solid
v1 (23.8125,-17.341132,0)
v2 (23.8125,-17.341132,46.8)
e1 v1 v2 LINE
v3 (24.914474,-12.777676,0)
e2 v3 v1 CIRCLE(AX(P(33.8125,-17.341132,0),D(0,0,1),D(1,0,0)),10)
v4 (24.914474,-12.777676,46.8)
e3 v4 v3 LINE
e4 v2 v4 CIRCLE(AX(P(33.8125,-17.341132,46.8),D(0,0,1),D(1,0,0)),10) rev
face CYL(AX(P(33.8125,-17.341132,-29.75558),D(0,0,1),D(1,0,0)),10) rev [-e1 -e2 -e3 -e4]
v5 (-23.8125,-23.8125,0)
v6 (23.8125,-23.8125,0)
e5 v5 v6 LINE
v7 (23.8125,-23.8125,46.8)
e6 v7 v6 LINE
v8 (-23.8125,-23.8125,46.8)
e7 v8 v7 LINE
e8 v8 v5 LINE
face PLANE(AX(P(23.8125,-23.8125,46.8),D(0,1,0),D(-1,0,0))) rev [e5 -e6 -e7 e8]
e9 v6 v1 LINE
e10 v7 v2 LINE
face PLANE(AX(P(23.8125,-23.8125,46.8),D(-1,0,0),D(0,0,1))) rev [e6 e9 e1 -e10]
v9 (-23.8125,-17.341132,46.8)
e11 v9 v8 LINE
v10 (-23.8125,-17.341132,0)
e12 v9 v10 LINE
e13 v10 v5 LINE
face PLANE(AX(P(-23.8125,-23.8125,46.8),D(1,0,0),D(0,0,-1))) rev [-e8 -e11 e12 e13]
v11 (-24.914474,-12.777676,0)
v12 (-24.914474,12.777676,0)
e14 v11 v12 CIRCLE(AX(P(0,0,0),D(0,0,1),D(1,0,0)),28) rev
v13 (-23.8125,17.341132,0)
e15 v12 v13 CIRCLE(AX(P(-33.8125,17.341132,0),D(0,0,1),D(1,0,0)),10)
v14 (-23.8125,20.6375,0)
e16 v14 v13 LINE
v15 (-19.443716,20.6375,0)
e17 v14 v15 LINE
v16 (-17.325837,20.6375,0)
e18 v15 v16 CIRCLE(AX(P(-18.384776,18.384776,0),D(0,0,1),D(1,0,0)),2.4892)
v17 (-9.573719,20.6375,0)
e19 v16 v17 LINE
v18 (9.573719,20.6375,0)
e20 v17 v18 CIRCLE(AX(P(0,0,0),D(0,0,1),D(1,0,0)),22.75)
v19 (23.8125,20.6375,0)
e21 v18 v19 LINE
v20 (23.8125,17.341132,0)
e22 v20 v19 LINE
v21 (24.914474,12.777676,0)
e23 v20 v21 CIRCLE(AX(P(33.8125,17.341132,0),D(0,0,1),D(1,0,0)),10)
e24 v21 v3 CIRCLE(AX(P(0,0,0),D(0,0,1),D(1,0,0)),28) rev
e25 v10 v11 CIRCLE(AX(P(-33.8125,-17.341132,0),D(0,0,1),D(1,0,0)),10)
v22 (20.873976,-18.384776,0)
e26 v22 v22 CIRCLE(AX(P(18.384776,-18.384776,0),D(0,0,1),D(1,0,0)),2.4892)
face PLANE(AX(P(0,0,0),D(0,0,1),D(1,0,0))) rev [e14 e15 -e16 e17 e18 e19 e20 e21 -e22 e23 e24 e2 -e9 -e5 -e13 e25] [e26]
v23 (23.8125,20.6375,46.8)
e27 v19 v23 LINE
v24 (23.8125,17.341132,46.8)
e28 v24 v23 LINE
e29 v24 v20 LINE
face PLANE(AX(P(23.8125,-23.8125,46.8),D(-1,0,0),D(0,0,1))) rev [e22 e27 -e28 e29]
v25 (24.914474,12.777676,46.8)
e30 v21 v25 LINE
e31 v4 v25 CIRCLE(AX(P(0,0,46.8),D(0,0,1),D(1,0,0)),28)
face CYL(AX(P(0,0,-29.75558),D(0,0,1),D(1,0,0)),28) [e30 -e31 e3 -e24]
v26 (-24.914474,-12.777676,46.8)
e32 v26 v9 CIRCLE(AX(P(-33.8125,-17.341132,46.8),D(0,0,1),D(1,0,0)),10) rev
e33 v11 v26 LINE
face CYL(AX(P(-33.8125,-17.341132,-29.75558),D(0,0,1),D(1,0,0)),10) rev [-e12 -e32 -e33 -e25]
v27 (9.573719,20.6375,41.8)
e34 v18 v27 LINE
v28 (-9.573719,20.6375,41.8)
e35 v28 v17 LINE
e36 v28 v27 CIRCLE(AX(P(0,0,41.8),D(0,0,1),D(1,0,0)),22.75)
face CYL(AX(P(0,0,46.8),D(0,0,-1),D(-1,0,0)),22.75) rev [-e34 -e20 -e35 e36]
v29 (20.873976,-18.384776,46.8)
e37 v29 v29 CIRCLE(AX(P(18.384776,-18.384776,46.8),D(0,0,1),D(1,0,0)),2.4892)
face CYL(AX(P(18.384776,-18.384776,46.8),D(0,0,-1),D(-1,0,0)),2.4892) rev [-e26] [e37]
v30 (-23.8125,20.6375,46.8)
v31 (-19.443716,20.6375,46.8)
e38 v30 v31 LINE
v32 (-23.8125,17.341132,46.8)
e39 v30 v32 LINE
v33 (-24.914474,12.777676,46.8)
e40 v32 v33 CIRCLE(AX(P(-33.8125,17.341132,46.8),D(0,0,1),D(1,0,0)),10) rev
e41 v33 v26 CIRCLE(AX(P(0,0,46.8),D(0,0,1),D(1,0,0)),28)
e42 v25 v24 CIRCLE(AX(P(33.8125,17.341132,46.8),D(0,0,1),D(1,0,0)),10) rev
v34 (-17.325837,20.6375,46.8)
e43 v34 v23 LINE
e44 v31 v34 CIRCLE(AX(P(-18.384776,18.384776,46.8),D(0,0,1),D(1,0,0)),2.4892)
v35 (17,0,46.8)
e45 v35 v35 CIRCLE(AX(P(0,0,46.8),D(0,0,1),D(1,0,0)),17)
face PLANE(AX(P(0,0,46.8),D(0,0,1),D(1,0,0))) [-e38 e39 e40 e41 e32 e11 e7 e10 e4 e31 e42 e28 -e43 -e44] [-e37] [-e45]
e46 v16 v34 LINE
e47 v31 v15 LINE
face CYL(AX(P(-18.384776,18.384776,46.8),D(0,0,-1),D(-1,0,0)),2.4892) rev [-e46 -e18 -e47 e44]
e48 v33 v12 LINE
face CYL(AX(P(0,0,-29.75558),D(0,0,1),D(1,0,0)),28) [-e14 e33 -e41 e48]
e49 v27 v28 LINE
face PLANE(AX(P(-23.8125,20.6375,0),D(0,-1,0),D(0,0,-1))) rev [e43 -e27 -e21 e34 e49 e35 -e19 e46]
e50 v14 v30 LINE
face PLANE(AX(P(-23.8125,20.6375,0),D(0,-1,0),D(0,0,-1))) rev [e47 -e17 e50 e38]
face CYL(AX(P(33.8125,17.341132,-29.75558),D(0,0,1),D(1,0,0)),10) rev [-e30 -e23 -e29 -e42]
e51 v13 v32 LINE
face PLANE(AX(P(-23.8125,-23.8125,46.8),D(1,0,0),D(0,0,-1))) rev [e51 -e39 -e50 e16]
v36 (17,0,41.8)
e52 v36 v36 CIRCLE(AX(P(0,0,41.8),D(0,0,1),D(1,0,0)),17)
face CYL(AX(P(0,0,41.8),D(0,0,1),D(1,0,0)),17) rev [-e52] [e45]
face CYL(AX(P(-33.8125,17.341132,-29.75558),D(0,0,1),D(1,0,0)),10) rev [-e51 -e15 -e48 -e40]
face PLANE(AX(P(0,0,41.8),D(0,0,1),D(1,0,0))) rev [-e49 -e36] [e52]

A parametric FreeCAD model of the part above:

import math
import FreeCAD as App
import Part
import Sketcher
Q = App.Units.Quantity


def edges_at(feature, points):
    """Names of the edges that pass closest to the given points."""
    edges = feature.Shape.Edges
    near = lambda p: min(range(len(edges)), key=lambda i: edges[i].distToShape(Part.Vertex(*p))[0])
    return sorted({f"Edge{near(p) + 1}" for p in points})

doc = App.newDocument("Part")
params = doc.addObject("Spreadsheet::Sheet", "Params")
for row, (alias, value) in enumerate([
    ("sketch1_diameter", "45.5 mm"),
    ("pad1_length", "46.8 mm"),
    ("sketch3_radius", "28 mm"),
    ("pad2_length", "46.8 mm"),
    ("fillet_radius", "10 mm"),
    ("sketch4_diameter", "34 mm"),
    ("sketch4_radius", "22.75 mm"),
    ("pad3_length", "5 mm"),
], start=1):
    params.set(f"A{row}", alias)
    params.set(f"B{row}", "=" + value)
    params.setAlias(f"B{row}", alias)

body = doc.addObject("PartDesign::Body", "Body")

# Sketch on XY plane
sketch1 = body.newObject("Sketcher::SketchObject", "Sketch")
sketch1.AttachmentSupport = (doc.getObject("XY_Plane"), [""])
sketch1.MapMode = "FlatFace"
sketch1.addGeometry(Part.LineSegment(App.Vector(-23.8, 23.8, 0), App.Vector(-23.8, -23.8, 0)), False)
sketch1.addGeometry(Part.LineSegment(App.Vector(-23.8, -23.8, 0), App.Vector(23.8, -23.8, 0)), False)
sketch1.addGeometry(Part.LineSegment(App.Vector(23.8, -23.8, 0), App.Vector(23.8, 23.8, 0)), False)
sketch1.addGeometry(Part.LineSegment(App.Vector(23.8, 23.8, 0), App.Vector(-23.8, 23.8, 0)), False)
sketch1.addGeometry(Part.Circle(App.Vector(18.4, -18.4, 0), App.Vector(0, 0, 1), 2.5), False)
sketch1.addGeometry(Part.Circle(App.Vector(-18.4, 18.4, 0), App.Vector(0, 0, 1), 2.5), False)
sketch1.addGeometry(Part.Circle(App.Vector(0, 0, 0), App.Vector(0, 0, 1), 22.8), False)
sketch1.addConstraint(Sketcher.Constraint("Coincident", 0, 2, 1, 1))
sketch1.addConstraint(Sketcher.Constraint("Coincident", 1, 2, 2, 1))
sketch1.addConstraint(Sketcher.Constraint("Coincident", 2, 2, 3, 1))
sketch1.addConstraint(Sketcher.Constraint("Coincident", 3, 2, 0, 1))
sketch1.addConstraint(Sketcher.Constraint("Vertical", 0))
sketch1.addConstraint(Sketcher.Constraint("Horizontal", 1))
sketch1.addConstraint(Sketcher.Constraint("Vertical", 2))
sketch1.addConstraint(Sketcher.Constraint("Horizontal", 3))
sketch1.addConstraint(Sketcher.Constraint("Coincident", 6, 3, -1, 1))
sketch1.addConstraint(Sketcher.Constraint("Equal", 4, 5))
sketch1.addConstraint(Sketcher.Constraint("Symmetric", 4, 3, 5, 3, -1, 1))
sketch1.addConstraint(Sketcher.Constraint("Symmetric", 0, 2, 2, 2, -1, 1))
sketch1.addConstraint(Sketcher.Constraint("Equal", 3, 0))
sketch1.addConstraint(Sketcher.Constraint("Diameter", 6, Q("45.5 mm")))
sketch1.addConstraint(Sketcher.Constraint("Diameter", 4, Q("4.9784 mm")))
sketch1.addConstraint(Sketcher.Constraint("DistanceX", 1, 1, 1, 2, Q("47.625 mm")))
sketch1.addConstraint(Sketcher.Constraint("DistanceX", -1, 1, 4, 3, Q("18.384776 mm")))
sketch1.addConstraint(Sketcher.Constraint("DistanceY", 4, 3, -1, 1, Q("18.384776 mm")))
sketch1.setExpression("Constraints[13]", "Params.sketch1_diameter")
pad1 = body.newObject("PartDesign::Pad", "Pad")
pad1.Profile = sketch1
pad1.setExpression("Length", "Params.pad1_length")

# Sketch on XY plane
sketch2 = body.newObject("Sketcher::SketchObject", "Sketch001")
sketch2.AttachmentSupport = (doc.getObject("XY_Plane"), [""])
sketch2.MapMode = "FlatFace"
sketch2.AttachmentOffset = App.Placement(App.Vector(0, 0, 46.8), App.Rotation())
sketch2.addGeometry(Part.LineSegment(App.Vector(-23.8, 23.8, 0), App.Vector(-23.8, 20.6, 0)), False)
sketch2.addGeometry(Part.LineSegment(App.Vector(-23.8, 20.6, 0), App.Vector(23.8, 20.6, 0)), False)
sketch2.addGeometry(Part.LineSegment(App.Vector(23.8, 20.6, 0), App.Vector(23.8, 23.8, 0)), False)
sketch2.addGeometry(Part.LineSegment(App.Vector(23.8, 23.8, 0), App.Vector(-23.8, 23.8, 0)), False)
sketch2.addConstraint(Sketcher.Constraint("Coincident", 0, 2, 1, 1))
sketch2.addConstraint(Sketcher.Constraint("Coincident", 1, 2, 2, 1))
sketch2.addConstraint(Sketcher.Constraint("Coincident", 2, 2, 3, 1))
sketch2.addConstraint(Sketcher.Constraint("Coincident", 3, 2, 0, 1))
sketch2.addConstraint(Sketcher.Constraint("Vertical", 0))
sketch2.addConstraint(Sketcher.Constraint("Horizontal", 1))
sketch2.addConstraint(Sketcher.Constraint("Vertical", 2))
sketch2.addConstraint(Sketcher.Constraint("Horizontal", 3))
sketch2.addConstraint(Sketcher.Constraint("DistanceX", 1, 1, 1, 2, Q("47.625 mm")))
sketch2.addConstraint(Sketcher.Constraint("DistanceY", 0, 2, 0, 1, Q("3.175 mm")))
sketch2.addConstraint(Sketcher.Constraint("DistanceX", 0, 2, -1, 1, Q("23.8125 mm")))
sketch2.addConstraint(Sketcher.Constraint("DistanceY", -1, 1, 0, 2, Q("20.6375 mm")))
pocket1 = body.newObject("PartDesign::Pocket", "Pocket")
pocket1.Profile = sketch2
pocket1.Type = "ThroughAll"
pocket1.Midplane = True

# Sketch on XY plane
sketch3 = body.newObject("Sketcher::SketchObject", "Sketch002")
sketch3.AttachmentSupport = (doc.getObject("XY_Plane"), [""])
sketch3.MapMode = "FlatFace"
sketch3.AttachmentOffset = App.Placement(App.Vector(0, 0, 46.8), App.Rotation())
sketch3.addGeometry(Part.LineSegment(App.Vector(24, 15, 0), App.Vector(24, -15, 0)), False)
sketch3.addGeometry(Part.ArcOfCircle(Part.Circle(App.Vector(0, 0, 0), App.Vector(0, 0, 1), 28), math.radians(-32), math.radians(32)), False)
sketch3.addGeometry(Part.LineSegment(App.Vector(-24, -15, 0), App.Vector(-24, 15, 0)), False)
sketch3.addGeometry(Part.ArcOfCircle(Part.Circle(App.Vector(0, 0, 0), App.Vector(0, 0, 1), 28), math.radians(148), math.radians(212)), False)
sketch3.addConstraint(Sketcher.Constraint("Coincident", 0, 1, 1, 2))
sketch3.addConstraint(Sketcher.Constraint("Coincident", 1, 1, 0, 2))
sketch3.addConstraint(Sketcher.Constraint("Coincident", 2, 1, 3, 2))
sketch3.addConstraint(Sketcher.Constraint("Coincident", 3, 1, 2, 2))
sketch3.addConstraint(Sketcher.Constraint("Vertical", 0))
sketch3.addConstraint(Sketcher.Constraint("Vertical", 2))
sketch3.addConstraint(Sketcher.Constraint("Coincident", 1, 3, -1, 1))
sketch3.addConstraint(Sketcher.Constraint("Coincident", 3, 3, -1, 1))
sketch3.addConstraint(Sketcher.Constraint("Equal", 1, 3))
sketch3.addConstraint(Sketcher.Constraint("Horizontal", 1, 1, 2, 1))
sketch3.addConstraint(Sketcher.Constraint("Radius", 1, Q("28 mm")))
sketch3.addConstraint(Sketcher.Constraint("DistanceX", 2, 1, 1, 1, Q("47.625 mm")))
sketch3.setExpression("Constraints[10]", "Params.sketch3_radius")
pad2 = body.newObject("PartDesign::Pad", "Pad001")
pad2.Profile = sketch3
pad2.setExpression("Length", "Params.pad2_length")
pad2.Reversed = True
doc.recompute()

fillet = body.newObject("PartDesign::Fillet", "Fillet")
fillet.Base = (pad2, edges_at(pad2, [
    (-23.812, -14.73, 23.4),
    (-23.812, 14.73, 23.4),
    (23.812, 14.73, 23.4),
    (23.812, -14.73, 23.4),
]))
fillet.setExpression("Radius", "Params.fillet_radius")

# Sketch on XY plane
sketch4 = body.newObject("Sketcher::SketchObject", "Sketch003")
sketch4.AttachmentSupport = (doc.getObject("XY_Plane"), [""])
sketch4.MapMode = "FlatFace"
sketch4.AttachmentOffset = App.Placement(App.Vector(0, 0, 41.8), App.Rotation())
sketch4.addGeometry(Part.LineSegment(App.Vector(10, 21, 0), App.Vector(-10, 21, 0)), False)
sketch4.addGeometry(Part.ArcOfCircle(Part.Circle(App.Vector(0, 0, 0), App.Vector(0, 0, 1), 23), math.radians(115), math.radians(425)), False)
sketch4.addGeometry(Part.Circle(App.Vector(0, 0, 0), App.Vector(0, 0, 1), 17), False)
sketch4.addConstraint(Sketcher.Constraint("Coincident", 0, 1, 1, 2))
sketch4.addConstraint(Sketcher.Constraint("Coincident", 1, 1, 0, 2))
sketch4.addConstraint(Sketcher.Constraint("Horizontal", 0))
sketch4.addConstraint(Sketcher.Constraint("Coincident", 1, 3, -1, 1))
sketch4.addConstraint(Sketcher.Constraint("Coincident", 2, 3, -1, 1))
sketch4.addConstraint(Sketcher.Constraint("Diameter", 2, Q("34 mm")))
sketch4.addConstraint(Sketcher.Constraint("Radius", 1, Q("22.75 mm")))
sketch4.addConstraint(Sketcher.Constraint("DistanceY", -1, 1, 0, 1, Q("20.6375 mm")))
sketch4.setExpression("Constraints[5]", "Params.sketch4_diameter")
sketch4.setExpression("Constraints[6]", "Params.sketch4_radius")
pad3 = body.newObject("PartDesign::Pad", "Pad002")
pad3.Profile = sketch4
pad3.setExpression("Length", "Params.pad3_length")

doc.recompute()
